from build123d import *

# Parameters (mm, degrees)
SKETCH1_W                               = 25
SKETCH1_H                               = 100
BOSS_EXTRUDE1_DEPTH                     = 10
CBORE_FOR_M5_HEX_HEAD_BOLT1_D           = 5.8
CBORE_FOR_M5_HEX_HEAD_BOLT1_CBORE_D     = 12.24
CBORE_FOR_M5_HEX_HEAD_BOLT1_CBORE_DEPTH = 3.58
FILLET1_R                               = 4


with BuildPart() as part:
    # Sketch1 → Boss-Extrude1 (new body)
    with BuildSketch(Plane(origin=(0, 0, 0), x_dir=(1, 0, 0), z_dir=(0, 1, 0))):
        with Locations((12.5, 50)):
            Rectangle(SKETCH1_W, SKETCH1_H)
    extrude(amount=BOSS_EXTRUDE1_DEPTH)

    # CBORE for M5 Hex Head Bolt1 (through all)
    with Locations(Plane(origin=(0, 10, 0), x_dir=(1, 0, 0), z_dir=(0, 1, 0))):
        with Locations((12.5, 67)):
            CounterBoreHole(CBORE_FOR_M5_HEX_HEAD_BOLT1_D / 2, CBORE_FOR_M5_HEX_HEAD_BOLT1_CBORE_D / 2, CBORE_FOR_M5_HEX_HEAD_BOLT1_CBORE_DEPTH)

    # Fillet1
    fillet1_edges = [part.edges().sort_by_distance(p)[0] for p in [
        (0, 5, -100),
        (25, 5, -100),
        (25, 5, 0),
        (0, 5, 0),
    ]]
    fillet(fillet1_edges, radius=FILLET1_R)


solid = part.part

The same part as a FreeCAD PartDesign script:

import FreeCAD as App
import Part
import Sketcher
Q = App.Units.Quantity


def edges_at(feature, points):
    """Names of the edges that pass closest to the given points."""
    edges = feature.Shape.Edges
    near = lambda p: min(range(len(edges)), key=lambda i: edges[i].distToShape(Part.Vertex(*p))[0])
    return sorted({f"Edge{near(p) + 1}" for p in points})

doc = App.newDocument("Part")
body = doc.addObject("PartDesign::Body", "Body")

sketch1 = body.newObject("Sketcher::SketchObject", "Sketch")
sketch1.AttachmentSupport = (doc.getObject("XZ_Plane"), [""])
sketch1.MapMode = "FlatFace"
sketch1.addGeometry([
    Part.LineSegment(App.Vector(0, -100, 0), App.Vector(0, 0, 0)),
    Part.LineSegment(App.Vector(0, 0, 0), App.Vector(25, 0, 0)),
    Part.LineSegment(App.Vector(25, 0, 0), App.Vector(25, -100, 0)),
    Part.LineSegment(App.Vector(25, -100, 0), App.Vector(0, -100, 0)),
], False)
sketch1.addConstraint([
    Sketcher.Constraint("Coincident", 0, 2, 1, 1),
    Sketcher.Constraint("Coincident", 1, 2, 2, 1),
    Sketcher.Constraint("Coincident", 2, 2, 3, 1),
    Sketcher.Constraint("Coincident", 3, 2, 0, 1),
    Sketcher.Constraint("Vertical", 0),
    Sketcher.Constraint("Horizontal", 1),
    Sketcher.Constraint("Vertical", 2),
    Sketcher.Constraint("Horizontal", 3),
    Sketcher.Constraint("Coincident", 0, 2, -1, 1),
    Sketcher.Constraint("DistanceX", 1, 1, 1, 2, Q("25 mm")),
    Sketcher.Constraint("DistanceY", 0, 1, 0, 2, Q("100 mm")),
])
pad1 = body.newObject("PartDesign::Pad", "Pad")
pad1.Profile = sketch1
pad1.Length = 10
pad1.Reversed = True

sketch2 = body.newObject("Sketcher::SketchObject", "Sketch001")
sketch2.AttachmentSupport = (doc.getObject("XZ_Plane"), [""])
sketch2.MapMode = "FlatFace"
sketch2.AttachmentOffset = App.Placement(App.Vector(0, 0, -10), App.Rotation())
sketch2.addGeometry(Part.Circle(App.Vector(12.5, -67, 0), App.Vector(0, 0, 1), 2.9), False)
sketch2.addConstraint([
    Sketcher.Constraint("Diameter", 0, Q("5.8 mm")),
    Sketcher.Constraint("DistanceY", 0, 3, -1, 1, Q("67 mm")),
    Sketcher.Constraint("DistanceX", -1, 1, 0, 3, Q("12.5 mm")),
])
doc.recompute()
hole = body.newObject("PartDesign::Hole", "Hole")
hole.Profile = sketch2
hole.ThreadType = "None"
hole.Diameter = 5.8
hole.DepthType = "ThroughAll"
hole.HoleCutType = "Counterbore"
hole.HoleCutDiameter = 12.24
hole.HoleCutDepth = 3.58
hole.Reversed = True
doc.recompute()

fillet = body.newObject("PartDesign::Fillet", "Fillet")
fillet.Base = (hole, edges_at(hole, [
    (0, 5, -100),
    (25, 5, -100),
    (25, 5, 0),
    (0, 5, 0),
]))
fillet.Radius = 4

doc.recompute()
